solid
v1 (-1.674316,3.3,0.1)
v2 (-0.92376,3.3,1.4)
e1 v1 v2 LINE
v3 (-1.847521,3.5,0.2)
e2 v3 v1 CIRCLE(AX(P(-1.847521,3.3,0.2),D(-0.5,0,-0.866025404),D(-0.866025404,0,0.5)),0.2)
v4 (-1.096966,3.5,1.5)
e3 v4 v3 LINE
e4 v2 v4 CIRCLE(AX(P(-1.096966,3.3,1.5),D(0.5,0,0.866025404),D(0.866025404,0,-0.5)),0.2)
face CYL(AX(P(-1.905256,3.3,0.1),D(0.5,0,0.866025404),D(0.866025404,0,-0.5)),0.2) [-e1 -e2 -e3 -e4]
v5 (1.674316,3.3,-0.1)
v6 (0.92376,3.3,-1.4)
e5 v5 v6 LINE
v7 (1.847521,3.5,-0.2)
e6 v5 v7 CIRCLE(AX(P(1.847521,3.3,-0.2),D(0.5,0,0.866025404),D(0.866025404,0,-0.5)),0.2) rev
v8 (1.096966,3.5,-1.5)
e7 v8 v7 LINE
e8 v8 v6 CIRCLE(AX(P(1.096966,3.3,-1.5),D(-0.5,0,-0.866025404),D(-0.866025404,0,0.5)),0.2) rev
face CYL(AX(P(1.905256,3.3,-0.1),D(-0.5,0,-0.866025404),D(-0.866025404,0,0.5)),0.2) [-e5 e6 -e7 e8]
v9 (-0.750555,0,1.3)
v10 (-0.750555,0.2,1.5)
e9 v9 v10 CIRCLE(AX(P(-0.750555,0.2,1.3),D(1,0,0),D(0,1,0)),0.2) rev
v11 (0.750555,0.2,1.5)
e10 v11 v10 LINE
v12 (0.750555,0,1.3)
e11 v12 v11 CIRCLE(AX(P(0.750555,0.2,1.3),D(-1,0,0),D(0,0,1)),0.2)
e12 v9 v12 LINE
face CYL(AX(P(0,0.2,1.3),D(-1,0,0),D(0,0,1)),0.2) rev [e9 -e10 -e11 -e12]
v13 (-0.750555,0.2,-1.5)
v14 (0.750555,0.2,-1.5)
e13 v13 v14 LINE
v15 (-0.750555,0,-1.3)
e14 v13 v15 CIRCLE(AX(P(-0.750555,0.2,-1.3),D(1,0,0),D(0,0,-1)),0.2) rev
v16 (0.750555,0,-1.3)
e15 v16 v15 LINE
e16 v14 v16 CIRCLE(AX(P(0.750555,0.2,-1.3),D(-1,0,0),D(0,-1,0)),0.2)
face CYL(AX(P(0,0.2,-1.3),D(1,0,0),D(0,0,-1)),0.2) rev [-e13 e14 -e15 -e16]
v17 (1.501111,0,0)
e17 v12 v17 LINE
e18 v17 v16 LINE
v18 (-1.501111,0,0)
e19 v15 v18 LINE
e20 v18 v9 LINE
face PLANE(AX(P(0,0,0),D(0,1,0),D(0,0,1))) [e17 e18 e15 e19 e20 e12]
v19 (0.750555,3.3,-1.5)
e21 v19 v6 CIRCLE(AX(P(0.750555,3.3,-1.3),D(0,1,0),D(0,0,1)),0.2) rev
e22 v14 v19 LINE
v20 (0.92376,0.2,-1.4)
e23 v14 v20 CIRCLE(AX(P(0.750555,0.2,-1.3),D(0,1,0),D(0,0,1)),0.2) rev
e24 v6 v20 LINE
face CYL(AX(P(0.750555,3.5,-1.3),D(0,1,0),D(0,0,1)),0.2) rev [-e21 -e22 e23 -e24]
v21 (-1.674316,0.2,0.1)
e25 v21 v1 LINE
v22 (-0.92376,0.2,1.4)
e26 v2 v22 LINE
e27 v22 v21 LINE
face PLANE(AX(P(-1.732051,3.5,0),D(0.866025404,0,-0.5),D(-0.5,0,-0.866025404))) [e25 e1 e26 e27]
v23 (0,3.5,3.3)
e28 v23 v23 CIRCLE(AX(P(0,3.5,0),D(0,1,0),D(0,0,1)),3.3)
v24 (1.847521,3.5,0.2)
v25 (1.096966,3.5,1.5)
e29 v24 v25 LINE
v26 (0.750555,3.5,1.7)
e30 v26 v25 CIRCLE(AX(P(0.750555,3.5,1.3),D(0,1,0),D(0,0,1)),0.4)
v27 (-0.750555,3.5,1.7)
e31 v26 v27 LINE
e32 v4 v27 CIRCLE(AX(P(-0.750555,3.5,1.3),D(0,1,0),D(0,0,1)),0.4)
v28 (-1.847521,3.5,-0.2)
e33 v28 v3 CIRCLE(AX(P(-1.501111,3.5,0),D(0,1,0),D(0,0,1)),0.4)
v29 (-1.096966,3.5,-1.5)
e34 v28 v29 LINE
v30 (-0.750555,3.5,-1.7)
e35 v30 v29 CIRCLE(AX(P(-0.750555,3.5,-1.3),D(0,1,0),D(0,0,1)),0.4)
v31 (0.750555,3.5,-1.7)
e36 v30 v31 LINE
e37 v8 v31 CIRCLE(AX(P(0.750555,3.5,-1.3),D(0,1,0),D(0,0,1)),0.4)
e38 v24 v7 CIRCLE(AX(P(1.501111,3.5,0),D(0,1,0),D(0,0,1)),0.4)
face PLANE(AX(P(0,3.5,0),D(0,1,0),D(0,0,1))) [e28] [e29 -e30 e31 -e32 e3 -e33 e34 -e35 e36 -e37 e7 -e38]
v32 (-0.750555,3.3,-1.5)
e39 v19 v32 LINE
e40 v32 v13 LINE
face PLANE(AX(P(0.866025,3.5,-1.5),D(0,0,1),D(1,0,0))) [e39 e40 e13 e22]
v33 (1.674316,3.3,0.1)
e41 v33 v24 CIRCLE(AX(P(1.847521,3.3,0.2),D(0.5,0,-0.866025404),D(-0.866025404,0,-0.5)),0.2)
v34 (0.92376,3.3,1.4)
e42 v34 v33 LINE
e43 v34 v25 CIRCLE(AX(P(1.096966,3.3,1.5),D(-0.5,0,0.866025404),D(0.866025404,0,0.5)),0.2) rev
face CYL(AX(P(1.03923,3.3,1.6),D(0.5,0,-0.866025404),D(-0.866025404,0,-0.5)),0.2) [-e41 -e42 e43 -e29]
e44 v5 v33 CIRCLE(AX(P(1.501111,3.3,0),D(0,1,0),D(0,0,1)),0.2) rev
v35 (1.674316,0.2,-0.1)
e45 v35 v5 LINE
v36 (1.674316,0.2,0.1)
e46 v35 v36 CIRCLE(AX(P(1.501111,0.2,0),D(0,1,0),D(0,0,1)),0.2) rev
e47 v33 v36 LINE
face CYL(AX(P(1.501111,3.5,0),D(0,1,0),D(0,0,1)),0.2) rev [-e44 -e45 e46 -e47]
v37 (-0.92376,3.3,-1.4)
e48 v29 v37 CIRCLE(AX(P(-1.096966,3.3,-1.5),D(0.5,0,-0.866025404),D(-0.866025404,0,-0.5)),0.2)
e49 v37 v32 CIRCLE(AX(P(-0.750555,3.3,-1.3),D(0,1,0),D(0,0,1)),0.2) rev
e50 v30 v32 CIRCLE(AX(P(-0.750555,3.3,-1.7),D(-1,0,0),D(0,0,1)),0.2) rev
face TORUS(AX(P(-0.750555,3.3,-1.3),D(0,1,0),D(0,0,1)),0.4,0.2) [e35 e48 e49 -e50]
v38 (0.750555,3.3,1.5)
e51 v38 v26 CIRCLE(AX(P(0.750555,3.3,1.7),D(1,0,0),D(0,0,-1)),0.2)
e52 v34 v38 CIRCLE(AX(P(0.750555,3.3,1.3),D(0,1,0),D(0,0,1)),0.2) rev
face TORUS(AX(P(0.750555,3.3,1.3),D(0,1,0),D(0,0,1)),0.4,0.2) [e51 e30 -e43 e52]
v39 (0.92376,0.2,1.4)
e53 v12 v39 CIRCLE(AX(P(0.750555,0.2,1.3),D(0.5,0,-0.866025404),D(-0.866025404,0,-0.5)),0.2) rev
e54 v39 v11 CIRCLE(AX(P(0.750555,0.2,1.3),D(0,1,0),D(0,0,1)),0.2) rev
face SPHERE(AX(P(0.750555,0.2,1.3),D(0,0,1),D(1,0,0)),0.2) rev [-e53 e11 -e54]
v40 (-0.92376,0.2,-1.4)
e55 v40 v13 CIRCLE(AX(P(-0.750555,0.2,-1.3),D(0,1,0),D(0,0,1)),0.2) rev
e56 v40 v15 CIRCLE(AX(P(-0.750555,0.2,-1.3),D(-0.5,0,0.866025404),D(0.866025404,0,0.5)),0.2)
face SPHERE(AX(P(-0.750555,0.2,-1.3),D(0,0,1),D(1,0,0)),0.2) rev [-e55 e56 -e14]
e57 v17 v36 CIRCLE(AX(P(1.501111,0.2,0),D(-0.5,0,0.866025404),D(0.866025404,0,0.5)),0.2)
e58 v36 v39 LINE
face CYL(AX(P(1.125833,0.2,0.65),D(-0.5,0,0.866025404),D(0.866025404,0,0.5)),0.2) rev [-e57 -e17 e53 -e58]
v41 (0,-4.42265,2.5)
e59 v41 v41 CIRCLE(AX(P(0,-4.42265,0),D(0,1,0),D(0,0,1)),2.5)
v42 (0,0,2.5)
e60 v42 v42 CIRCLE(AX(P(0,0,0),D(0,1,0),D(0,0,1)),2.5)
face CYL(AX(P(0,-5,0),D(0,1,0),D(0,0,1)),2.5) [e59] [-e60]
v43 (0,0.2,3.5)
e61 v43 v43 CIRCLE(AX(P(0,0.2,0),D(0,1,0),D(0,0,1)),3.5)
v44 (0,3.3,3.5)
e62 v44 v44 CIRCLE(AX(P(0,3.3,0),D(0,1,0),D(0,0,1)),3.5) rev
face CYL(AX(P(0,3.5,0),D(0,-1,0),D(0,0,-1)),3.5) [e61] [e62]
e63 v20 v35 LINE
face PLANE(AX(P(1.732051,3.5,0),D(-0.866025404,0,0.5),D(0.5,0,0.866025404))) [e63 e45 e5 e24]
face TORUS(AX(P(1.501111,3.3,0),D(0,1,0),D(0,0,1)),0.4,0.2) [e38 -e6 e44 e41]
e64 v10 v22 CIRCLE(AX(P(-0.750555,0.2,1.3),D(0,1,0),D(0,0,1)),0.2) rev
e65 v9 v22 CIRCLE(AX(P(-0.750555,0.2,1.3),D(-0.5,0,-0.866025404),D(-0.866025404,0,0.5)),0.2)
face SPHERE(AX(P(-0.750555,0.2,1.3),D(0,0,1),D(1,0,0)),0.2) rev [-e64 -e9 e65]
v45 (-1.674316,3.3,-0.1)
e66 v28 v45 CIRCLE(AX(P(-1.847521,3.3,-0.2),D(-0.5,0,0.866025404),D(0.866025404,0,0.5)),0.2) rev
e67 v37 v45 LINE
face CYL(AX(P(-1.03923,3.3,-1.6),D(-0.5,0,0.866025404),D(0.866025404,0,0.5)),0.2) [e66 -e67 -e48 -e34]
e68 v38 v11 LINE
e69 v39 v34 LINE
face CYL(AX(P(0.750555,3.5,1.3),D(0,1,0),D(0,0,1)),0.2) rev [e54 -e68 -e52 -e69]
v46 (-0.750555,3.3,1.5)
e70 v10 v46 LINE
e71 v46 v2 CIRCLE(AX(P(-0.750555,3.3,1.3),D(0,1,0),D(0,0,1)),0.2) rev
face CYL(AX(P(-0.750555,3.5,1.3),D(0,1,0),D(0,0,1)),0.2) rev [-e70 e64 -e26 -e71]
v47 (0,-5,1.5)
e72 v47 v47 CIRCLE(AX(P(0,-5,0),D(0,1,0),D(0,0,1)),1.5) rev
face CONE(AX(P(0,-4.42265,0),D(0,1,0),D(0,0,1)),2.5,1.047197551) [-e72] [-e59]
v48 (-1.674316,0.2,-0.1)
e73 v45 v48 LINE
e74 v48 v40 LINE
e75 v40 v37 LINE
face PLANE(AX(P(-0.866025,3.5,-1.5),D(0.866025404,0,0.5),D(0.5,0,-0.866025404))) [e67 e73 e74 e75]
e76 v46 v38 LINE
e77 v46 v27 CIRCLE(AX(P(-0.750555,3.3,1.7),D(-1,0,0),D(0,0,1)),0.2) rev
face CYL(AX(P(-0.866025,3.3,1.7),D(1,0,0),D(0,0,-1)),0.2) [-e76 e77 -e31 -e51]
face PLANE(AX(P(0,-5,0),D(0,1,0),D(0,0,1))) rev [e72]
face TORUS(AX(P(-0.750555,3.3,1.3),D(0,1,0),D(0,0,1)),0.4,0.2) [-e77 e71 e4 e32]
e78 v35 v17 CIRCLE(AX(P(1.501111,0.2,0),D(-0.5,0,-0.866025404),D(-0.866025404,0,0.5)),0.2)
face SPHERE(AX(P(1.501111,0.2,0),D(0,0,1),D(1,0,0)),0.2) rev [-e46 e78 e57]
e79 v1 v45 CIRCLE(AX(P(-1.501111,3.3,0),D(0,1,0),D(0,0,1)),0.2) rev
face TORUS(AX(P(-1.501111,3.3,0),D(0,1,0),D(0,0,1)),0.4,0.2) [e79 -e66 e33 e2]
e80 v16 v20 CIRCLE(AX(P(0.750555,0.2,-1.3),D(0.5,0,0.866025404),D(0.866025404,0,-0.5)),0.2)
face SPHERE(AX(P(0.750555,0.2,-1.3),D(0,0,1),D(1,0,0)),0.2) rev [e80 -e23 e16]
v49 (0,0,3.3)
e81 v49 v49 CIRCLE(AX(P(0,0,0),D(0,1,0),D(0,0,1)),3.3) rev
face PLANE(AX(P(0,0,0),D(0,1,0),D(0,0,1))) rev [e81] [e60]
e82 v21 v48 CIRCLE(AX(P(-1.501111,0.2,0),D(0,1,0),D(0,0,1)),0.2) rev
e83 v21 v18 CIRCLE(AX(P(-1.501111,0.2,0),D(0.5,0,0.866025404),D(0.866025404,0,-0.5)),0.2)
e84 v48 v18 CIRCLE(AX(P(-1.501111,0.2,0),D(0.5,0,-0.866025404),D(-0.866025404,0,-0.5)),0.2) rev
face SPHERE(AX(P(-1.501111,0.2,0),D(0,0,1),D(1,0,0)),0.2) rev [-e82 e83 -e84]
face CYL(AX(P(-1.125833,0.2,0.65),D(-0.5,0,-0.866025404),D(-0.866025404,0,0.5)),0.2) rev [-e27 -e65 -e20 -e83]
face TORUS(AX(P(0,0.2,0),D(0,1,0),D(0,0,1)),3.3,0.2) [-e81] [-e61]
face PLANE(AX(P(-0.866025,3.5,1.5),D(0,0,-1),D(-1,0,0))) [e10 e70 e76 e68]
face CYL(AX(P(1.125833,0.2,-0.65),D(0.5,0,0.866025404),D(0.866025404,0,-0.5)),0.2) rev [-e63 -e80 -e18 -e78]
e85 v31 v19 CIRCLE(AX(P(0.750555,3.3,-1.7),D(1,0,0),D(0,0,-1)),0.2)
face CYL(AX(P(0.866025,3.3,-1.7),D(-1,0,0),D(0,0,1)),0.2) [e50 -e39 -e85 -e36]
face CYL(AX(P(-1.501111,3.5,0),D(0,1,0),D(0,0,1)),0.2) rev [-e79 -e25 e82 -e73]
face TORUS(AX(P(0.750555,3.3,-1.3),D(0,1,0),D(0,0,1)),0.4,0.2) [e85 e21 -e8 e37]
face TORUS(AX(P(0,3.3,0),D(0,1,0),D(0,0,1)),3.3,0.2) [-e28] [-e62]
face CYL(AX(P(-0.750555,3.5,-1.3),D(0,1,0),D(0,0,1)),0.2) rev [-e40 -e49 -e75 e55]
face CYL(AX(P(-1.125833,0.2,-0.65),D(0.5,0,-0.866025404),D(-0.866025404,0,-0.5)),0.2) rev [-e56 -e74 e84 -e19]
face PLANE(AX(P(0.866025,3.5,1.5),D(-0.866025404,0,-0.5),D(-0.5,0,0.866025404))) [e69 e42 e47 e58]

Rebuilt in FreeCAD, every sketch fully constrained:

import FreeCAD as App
import Part
import Sketcher
from FreeCAD import Vector
Q = App.Units.Quantity


def edges_at(feature, points):
    """Names of the edges that pass closest to the given points."""
    edges = feature.Shape.Edges
    near = lambda p: min(range(len(edges)), key=lambda i: edges[i].distToShape(Part.Vertex(*p))[0])
    return sorted({f"Edge{near(p) + 1}" for p in points})

doc = App.newDocument("Part")
params = doc.addObject("Spreadsheet::Sheet", "Params")
for row, (alias, value) in enumerate([
    ("sketch1_diameter", "7 mm"),
    ("pad1_length", "3.5 mm"),
    ("sketch2_diameter", "5 mm"),
    ("pad2_length", "5 mm"),
    ("fillet_radius", "0.2 mm"),
    ("chamfer_size", "1 mm"),
    ("chamfer_size2", "0.57735 mm"),
], start=1):
    params.set(f"A{row}", alias)
    params.set(f"B{row}", "=" + value)
    params.setAlias(f"B{row}", alias)

body = doc.addObject("PartDesign::Body", "Body")

# Sketch on XZ plane
sketch1 = doc.addObject("Sketcher::SketchObject", "Sketch")
body.addObject(sketch1)
sketch1.AttachmentSupport = (doc.XZ_Plane, [""])
sketch1.MapMode = "FlatFace"
sketch1.addGeometry([
    Part.Circle(Vector(0, 0, 0), Vector(0, 0, 1), 3.5),  # 0
    Part.LineSegment(Vector(-1.732051, 0, 0), Vector(-0.866025, -1.5, 0)),  # 1
    Part.LineSegment(Vector(-0.866025, -1.5, 0), Vector(0.866025, -1.5, 0)),  # 2
    Part.LineSegment(Vector(0.866025, -1.5, 0), Vector(1.732051, 0, 0)),  # 3
    Part.LineSegment(Vector(1.732051, 0, 0), Vector(0.866025, 1.5, 0)),  # 4
    Part.LineSegment(Vector(0.866025, 1.5, 0), Vector(-0.866025, 1.5, 0)),  # 5
    Part.LineSegment(Vector(-0.866025, 1.5, 0), Vector(-1.732051, 0, 0)),  # 6
], False)
sketch1.addConstraint([
    Sketcher.Constraint("Coincident", 1, 2, 2, 1),
    Sketcher.Constraint("Coincident", 2, 2, 3, 1),
    Sketcher.Constraint("Coincident", 3, 2, 4, 1),
    Sketcher.Constraint("Coincident", 4, 2, 5, 1),
    Sketcher.Constraint("Coincident", 5, 2, 6, 1),
    Sketcher.Constraint("Coincident", 6, 2, 1, 1),
    Sketcher.Constraint("Horizontal", 2),
    Sketcher.Constraint("Horizontal", 5),
    Sketcher.Constraint("Coincident", 0, 3, -1, 1),
    Sketcher.Constraint("Symmetric", 1, 2, 4, 2, -1, 1),
    Sketcher.Constraint("Symmetric", 3, 2, 6, 2, -1, 1),
    Sketcher.Constraint("PointOnObject", 3, 2, -1),
    Sketcher.Constraint("Parallel", 3, 6),
    Sketcher.Constraint("Vertical", 2, 2, 4, 2),
    Sketcher.Constraint("Diameter", 0, 7.0),
    Sketcher.Constraint("Angle", 1, Q("-60 deg")),
    Sketcher.Constraint("DistanceY", 2, 2, 4, 2, 3.0),
    Sketcher.Constraint("DistanceX", 2, 1, 2, 2, 1.732051),
])
sketch1.setExpression("Constraints[14]", "Params.sketch1_diameter")
pad1 = doc.addObject("PartDesign::Pad", "Pad")
body.addObject(pad1)
pad1.Profile = sketch1
pad1.setExpression("Length", "Params.pad1_length")
pad1.Reversed = True

# Sketch on XZ plane
sketch2 = doc.addObject("Sketcher::SketchObject", "Sketch001")
body.addObject(sketch2)
sketch2.AttachmentSupport = (doc.XZ_Plane, [""])
sketch2.MapMode = "FlatFace"
sketch2.addGeometry(Part.Circle(Vector(0, 0, 0), Vector(0, 0, 1), 2.5), False)
sketch2.addConstraint([
    Sketcher.Constraint("Coincident", 0, 3, -1, 1),
    Sketcher.Constraint("Diameter", 0, 5.0),
])
sketch2.setExpression("Constraints[1]", "Params.sketch2_diameter")
pad2 = doc.addObject("PartDesign::Pad", "Pad001")
body.addObject(pad2)
pad2.Profile = sketch2
pad2.setExpression("Length", "Params.pad2_length")
doc.recompute()

fillet = doc.addObject("PartDesign::Fillet", "Fillet")
body.addObject(fillet)
fillet.Base = (pad2, edges_at(pad2, [
    (-0.866, 1.75, -1.5),
    (-1.299, 0, 0.75),
    (-1.732, 1.75, 0),
    (0, 0, 1.5),
    (-0.866, 1.75, 1.5),
    (1.299, 0, 0.75),
    (0.866, 1.75, 1.5),
    (1.299, 0, -0.75),
    (1.732, 1.75, 0),
    (0, 3.5, -1.5),
    (-1.299, 3.5, -0.75),
    (-1.299, 3.5, 0.75),
    (0, 3.5, 1.5),
    (1.299, 3.5, 0.75),
    (1.299, 3.5, -0.75),
    (0, 0, -3.5),
    (0, 3.5, -3.5),
    (0, 0, -1.5),
    (0.866, 1.75, -1.5),
    (-1.299, 0, -0.75),
]))
fillet.setExpression("Radius", "Params.fillet_radius")
doc.recompute()

chamfer = doc.addObject("PartDesign::Chamfer", "Chamfer")
body.addObject(chamfer)
chamfer.Base = (fillet, edges_at(fillet, [(0, -5, -2.5)]))
chamfer.ChamferType = "Two distances"
chamfer.setExpression("Size", "Params.chamfer_size")
chamfer.setExpression("Size2", "Params.chamfer_size2")
chamfer.FlipDirection = True

doc.recompute()
